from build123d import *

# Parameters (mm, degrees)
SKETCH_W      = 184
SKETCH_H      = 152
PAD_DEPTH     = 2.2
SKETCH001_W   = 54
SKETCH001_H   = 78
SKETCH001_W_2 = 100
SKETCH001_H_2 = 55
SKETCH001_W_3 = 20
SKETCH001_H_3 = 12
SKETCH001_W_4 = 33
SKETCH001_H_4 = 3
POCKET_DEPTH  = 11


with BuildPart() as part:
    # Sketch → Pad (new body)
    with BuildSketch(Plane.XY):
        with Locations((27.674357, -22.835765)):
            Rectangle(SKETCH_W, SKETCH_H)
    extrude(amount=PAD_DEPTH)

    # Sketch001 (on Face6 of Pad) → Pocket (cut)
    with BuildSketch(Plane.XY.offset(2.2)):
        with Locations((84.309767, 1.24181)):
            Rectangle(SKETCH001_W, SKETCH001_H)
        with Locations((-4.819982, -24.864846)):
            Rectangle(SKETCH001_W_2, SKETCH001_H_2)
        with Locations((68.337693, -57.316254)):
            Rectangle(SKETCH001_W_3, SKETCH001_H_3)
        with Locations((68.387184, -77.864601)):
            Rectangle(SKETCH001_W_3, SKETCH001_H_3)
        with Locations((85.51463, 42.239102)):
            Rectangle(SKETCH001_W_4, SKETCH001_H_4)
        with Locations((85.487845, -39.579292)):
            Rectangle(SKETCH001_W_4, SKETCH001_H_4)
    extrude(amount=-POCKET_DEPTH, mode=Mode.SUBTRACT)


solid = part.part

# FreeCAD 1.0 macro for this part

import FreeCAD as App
import Part
import Sketcher
Q = App.Units.Quantity


def add_polygon(sketch, points):
    """Adds a closed chain of lines whose ends are joined by coincident constraints."""
    first, n = sketch.GeometryCount, len(points)
    for a, b in zip(points, points[1:] + points[:1]):
        sketch.addGeometry(Part.LineSegment(App.Vector(*a, 0), App.Vector(*b, 0)), False)
    for i in range(n):
        sketch.addConstraint(Sketcher.Constraint("Coincident", first + i, 2, first + (i + 1) % n, 1))

doc = App.newDocument("Part")
body = doc.addObject("PartDesign::Body", "Body")

sketch1 = body.newObject("Sketcher::SketchObject", "Sketch")
sketch1.AttachmentSupport = (doc.getObject("XY_Plane"), [""])
sketch1.MapMode = "FlatFace"
add_polygon(sketch1, [(-64, 53), (-64, -99), (120, -99), (120, 53)])
sketch1.addConstraint([
    Sketcher.Constraint("Vertical", 0),
    Sketcher.Constraint("Horizontal", 1),
    Sketcher.Constraint("Vertical", 2),
    Sketcher.Constraint("Horizontal", 3),
    Sketcher.Constraint("DistanceX", 1, 1, 1, 2, Q("184 mm")),
    Sketcher.Constraint("DistanceY", 0, 2, 0, 1, Q("152 mm")),
    Sketcher.Constraint("DistanceX", 0, 2, -1, 1, Q("64.325643 mm")),
    Sketcher.Constraint("DistanceY", 0, 2, -1, 1, Q("98.835765 mm")),
])
pad1 = body.newObject("PartDesign::Pad", "Pad")
pad1.Profile = sketch1
pad1.Length = 2.2

sketch2 = body.newObject("Sketcher::SketchObject", "Sketch001")
sketch2.AttachmentSupport = (doc.getObject("XY_Plane"), [""])
sketch2.MapMode = "FlatFace"
sketch2.AttachmentOffset = App.Placement(App.Vector(0, 0, 2.2), App.Rotation())
add_polygon(sketch2, [(57.3, 40.2), (57.3, -37.8), (111.3, -37.8), (111.3, 40.2)])
add_polygon(sketch2, [(-54.8, 2.6), (-54.8, -52.4), (45.2, -52.4), (45.2, 2.6)])
add_polygon(sketch2, [(58.3, -51.3), (58.3, -63.3), (78.3, -63.3), (78.3, -51.3)])
add_polygon(sketch2, [(58.4, -71.9), (58.4, -83.9), (78.4, -83.9), (78.4, -71.9)])
add_polygon(sketch2, [(69, 43.7), (69, 40.7), (102, 40.7), (102, 43.7)])
add_polygon(sketch2, [(69, -38.1), (69, -41.1), (102, -41.1), (102, -38.1)])
sketch2.addConstraint([
    Sketcher.Constraint("Vertical", 0),
    Sketcher.Constraint("Horizontal", 1),
    Sketcher.Constraint("Vertical", 2),
    Sketcher.Constraint("Horizontal", 3),
    Sketcher.Constraint("Vertical", 4),
    Sketcher.Constraint("Horizontal", 5),
    Sketcher.Constraint("Vertical", 6),
    Sketcher.Constraint("Horizontal", 7),
    Sketcher.Constraint("Vertical", 8),
    Sketcher.Constraint("Horizontal", 9),
    Sketcher.Constraint("Vertical", 10),
    Sketcher.Constraint("Horizontal", 11),
    Sketcher.Constraint("Vertical", 12),
    Sketcher.Constraint("Horizontal", 13),
    Sketcher.Constraint("Vertical", 14),
    Sketcher.Constraint("Horizontal", 15),
    Sketcher.Constraint("Vertical", 16),
    Sketcher.Constraint("Horizontal", 17),
    Sketcher.Constraint("Vertical", 18),
    Sketcher.Constraint("Horizontal", 19),
    Sketcher.Constraint("Vertical", 20),
    Sketcher.Constraint("Horizontal", 21),
    Sketcher.Constraint("Vertical", 22),
    Sketcher.Constraint("Horizontal", 23),
    Sketcher.Constraint("Equal", 11, 13),
    Sketcher.Constraint("Equal", 19, 21),
    Sketcher.Constraint("Equal", 10, 12),
    Sketcher.Constraint("Equal", 18, 20),
    Sketcher.Constraint("DistanceX", 1, 1, 1, 2, Q("54 mm")),
    Sketcher.Constraint("DistanceX", 5, 1, 5, 2, Q("100 mm")),
    Sketcher.Constraint("DistanceX", 9, 1, 9, 2, Q("20 mm")),
    Sketcher.Constraint("DistanceX", 17, 1, 17, 2, Q("33 mm")),
    Sketcher.Constraint("DistanceY", 0, 2, 0, 1, Q("78 mm")),
    Sketcher.Constraint("DistanceY", 4, 2, 4, 1, Q("55 mm")),
    Sketcher.Constraint("DistanceY", 8, 2, 8, 1, Q("12 mm")),
    Sketcher.Constraint("DistanceY", 16, 2, 16, 1, Q("3 mm")),
    Sketcher.Constraint("DistanceY", 12, 2, -1, 1, Q("83.864601 mm")),
    Sketcher.Constraint("DistanceY", 0, 2, -1, 1, Q("37.75819 mm")),
    Sketcher.Constraint("DistanceX", -1, 1, 16, 2, Q("69.01463 mm")),
    Sketcher.Constraint("DistanceX", 4, 2, 0, 2, Q("112.129749 mm")),
    Sketcher.Constraint("DistanceY", 8, 2, 5, 2, Q("10.951408 mm")),
    Sketcher.Constraint("DistanceX", 8, 2, 12, 2, Q("0.049491 mm")),
    Sketcher.Constraint("DistanceX", 6, 2, 16, 2, Q("23.834612 mm")),
    Sketcher.Constraint("DistanceY", 6, 2, 16, 2, Q("38.103948 mm")),
    Sketcher.Constraint("DistanceY", 0, 2, 16, 2, Q("78.497292 mm")),
    Sketcher.Constraint("DistanceX", 20, 2, 10, 2, Q("9.349848 mm")),
    Sketcher.Constraint("DistanceY", 10, 2, 20, 2, Q("10.236962 mm")),
    Sketcher.Constraint("DistanceX", -1, 1, 8, 2, Q("58.337693 mm")),
])
pocket1 = body.newObject("PartDesign::Pocket", "Pocket")
pocket1.Profile = sketch2
pocket1.Length = 11

doc.recompute()
